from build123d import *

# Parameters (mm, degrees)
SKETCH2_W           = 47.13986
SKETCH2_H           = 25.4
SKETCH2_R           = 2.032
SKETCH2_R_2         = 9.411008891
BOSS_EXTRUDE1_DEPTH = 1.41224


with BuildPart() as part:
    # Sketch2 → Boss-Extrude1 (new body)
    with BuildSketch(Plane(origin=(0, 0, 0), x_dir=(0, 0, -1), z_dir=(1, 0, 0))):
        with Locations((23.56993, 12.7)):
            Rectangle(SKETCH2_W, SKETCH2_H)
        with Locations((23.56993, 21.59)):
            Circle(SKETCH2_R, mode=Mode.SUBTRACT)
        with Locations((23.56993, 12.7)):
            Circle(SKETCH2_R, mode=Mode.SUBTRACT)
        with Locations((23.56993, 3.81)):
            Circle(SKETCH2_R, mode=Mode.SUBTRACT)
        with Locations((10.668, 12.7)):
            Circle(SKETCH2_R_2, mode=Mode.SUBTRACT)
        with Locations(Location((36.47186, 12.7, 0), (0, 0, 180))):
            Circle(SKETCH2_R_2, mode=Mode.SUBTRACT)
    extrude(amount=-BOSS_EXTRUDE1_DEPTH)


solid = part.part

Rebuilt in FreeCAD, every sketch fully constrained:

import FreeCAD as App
import Part
import Sketcher

V = App.Vector
Q = App.Units.Quantity

doc = App.newDocument("Part")
body = doc.addObject("PartDesign::Body", "Body")

sketch1 = body.newObject("Sketcher::SketchObject", "Sketch")
sketch1.AttachmentSupport = (doc.getObject("YZ_Plane"), [""])
sketch1.MapMode = "FlatFace"
sketch1.addGeometry([
    Part.LineSegment(V(25.4, 0, 0), V(0, 0, 0)),
    Part.LineSegment(V(0, 0, 0), V(0, -47.1, 0)),
    Part.LineSegment(V(0, -47.1, 0), V(25.4, -47.1, 0)),
    Part.LineSegment(V(25.4, -47.1, 0), V(25.4, 0, 0)),
    Part.Circle(V(12.7, -10.7, 0), V(0, 0, 1), 9.4),
    Part.Circle(V(3.8, -23.6, 0), V(0, 0, 1), 2),
    Part.Circle(V(12.7, -23.6, 0), V(0, 0, 1), 2),
    Part.Circle(V(12.7, -36.5, 0), V(0, 0, 1), 9.4),
    Part.Circle(V(21.6, -23.6, 0), V(0, 0, 1), 2),
], False)
sketch1.addConstraint([
    Sketcher.Constraint("Coincident", 0, 2, 1, 1),
    Sketcher.Constraint("Coincident", 1, 2, 2, 1),
    Sketcher.Constraint("Coincident", 2, 2, 3, 1),
    Sketcher.Constraint("Coincident", 3, 2, 0, 1),
    Sketcher.Constraint("Horizontal", 0),
    Sketcher.Constraint("Vertical", 1),
    Sketcher.Constraint("Horizontal", 2),
    Sketcher.Constraint("Vertical", 3),
    Sketcher.Constraint("Coincident", 0, 2, -1, 1),
    Sketcher.Constraint("Equal", 5, 6),
    Sketcher.Constraint("Equal", 4, 7),
    Sketcher.Constraint("Equal", 6, 8),
    Sketcher.Constraint("Horizontal", 5, 3, 6, 3),
    Sketcher.Constraint("Horizontal", 6, 3, 8, 3),
    Sketcher.Constraint("Vertical", 4, 3, 6, 3),
    Sketcher.Constraint("Vertical", 6, 3, 7, 3),
    Sketcher.Constraint("Diameter", 5, Q("0.16 in")),
    Sketcher.Constraint("DistanceX", 0, 2, 0, 1, Q("1 in")),
    Sketcher.Constraint("DistanceX", -1, 1, 4, 3, Q("0.5 in")),
    Sketcher.Constraint("DistanceX", 5, 3, 8, 3, Q("0.7 in")),
    Sketcher.Constraint("DistanceY", 4, 3, -1, 1, Q("0.42 in")),
    Sketcher.Constraint("DistanceX", -1, 1, 5, 3, Q("0.15 in")),
    Sketcher.Constraint("DistanceY", 1, 2, 7, 3, Q("0.42 in")),
    Sketcher.Constraint("DistanceY", 1, 2, 1, 1, Q("1.8559 in")),
    Sketcher.Constraint("Diameter", 4, 18.822018),
    Sketcher.Constraint("DistanceY", 5, 3, -1, 1, 23.56993),
])
pad1 = body.newObject("PartDesign::Pad", "Pad")
pad1.Profile = sketch1
pad1.Length = Q("0.0556 in")
pad1.Reversed = True

doc.recompute()
